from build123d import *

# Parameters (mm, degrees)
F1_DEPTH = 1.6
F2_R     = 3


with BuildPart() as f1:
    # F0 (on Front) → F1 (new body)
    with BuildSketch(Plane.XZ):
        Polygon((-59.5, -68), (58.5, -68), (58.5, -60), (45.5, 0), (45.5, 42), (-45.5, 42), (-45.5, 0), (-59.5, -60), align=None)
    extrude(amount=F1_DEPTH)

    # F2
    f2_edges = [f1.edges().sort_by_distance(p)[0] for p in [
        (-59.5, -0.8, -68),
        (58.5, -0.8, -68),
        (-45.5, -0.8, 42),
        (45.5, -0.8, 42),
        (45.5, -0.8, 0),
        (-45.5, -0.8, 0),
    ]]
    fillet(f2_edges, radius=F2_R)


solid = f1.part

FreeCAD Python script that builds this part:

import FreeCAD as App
import Part
import Sketcher

V = App.Vector


def edges_at(feature, points):
    """Names of the edges that pass closest to the given points."""
    edges = feature.Shape.Edges
    near = lambda p: min(range(len(edges)), key=lambda i: edges[i].distToShape(Part.Vertex(*p))[0])
    return sorted({f"Edge{near(p) + 1}" for p in points})

doc = App.newDocument("Part")
body = doc.addObject("PartDesign::Body", "Body")

sketch1 = body.newObject("Sketcher::SketchObject", "Sketch")
sketch1.AttachmentSupport = (doc.getObject("XZ_Plane"), [""])
sketch1.MapMode = "FlatFace"
sketch1.addGeometry(Part.LineSegment(V(-59.5, -68, 0), V(58.5, -68, 0)), False)
sketch1.addGeometry(Part.LineSegment(V(58.5, -68, 0), V(58.5, -60, 0)), False)
sketch1.addGeometry(Part.LineSegment(V(58.5, -60, 0), V(45.5, 0, 0)), False)
sketch1.addGeometry(Part.LineSegment(V(45.5, 0, 0), V(45.5, 42, 0)), False)
sketch1.addGeometry(Part.LineSegment(V(45.5, 42, 0), V(-45.5, 42, 0)), False)
sketch1.addGeometry(Part.LineSegment(V(-45.5, 42, 0), V(-45.5, 0, 0)), False)
sketch1.addGeometry(Part.LineSegment(V(-45.5, 0, 0), V(-59.5, -60, 0)), False)
sketch1.addGeometry(Part.LineSegment(V(-59.5, -60, 0), V(-59.5, -68, 0)), False)
sketch1.addConstraint(Sketcher.Constraint("Coincident", 0, 2, 1, 1))
sketch1.addConstraint(Sketcher.Constraint("Coincident", 1, 2, 2, 1))
sketch1.addConstraint(Sketcher.Constraint("Coincident", 2, 2, 3, 1))
sketch1.addConstraint(Sketcher.Constraint("Coincident", 3, 2, 4, 1))
sketch1.addConstraint(Sketcher.Constraint("Coincident", 4, 2, 5, 1))
sketch1.addConstraint(Sketcher.Constraint("Coincident", 5, 2, 6, 1))
sketch1.addConstraint(Sketcher.Constraint("Coincident", 6, 2, 7, 1))
sketch1.addConstraint(Sketcher.Constraint("Coincident", 7, 2, 0, 1))
sketch1.addConstraint(Sketcher.Constraint("Horizontal", 0))
sketch1.addConstraint(Sketcher.Constraint("Vertical", 1))
sketch1.addConstraint(Sketcher.Constraint("Vertical", 3))
sketch1.addConstraint(Sketcher.Constraint("Horizontal", 4))
sketch1.addConstraint(Sketcher.Constraint("Vertical", 5))
sketch1.addConstraint(Sketcher.Constraint("Vertical", 7))
sketch1.addConstraint(Sketcher.Constraint("Symmetric", 2, 2, 5, 2, -1, 1))
sketch1.addConstraint(Sketcher.Constraint("PointOnObject", 2, 2, -1))
sketch1.addConstraint(Sketcher.Constraint("Horizontal", 1, 2, 6, 2))
sketch1.addConstraint(Sketcher.Constraint("DistanceX", 0, 1, 0, 2, 118.0))
sketch1.addConstraint(Sketcher.Constraint("DistanceX", 4, 2, 4, 1, 91.0))
sketch1.addConstraint(Sketcher.Constraint("DistanceY", 1, 1, 1, 2, 8.0))
sketch1.addConstraint(Sketcher.Constraint("DistanceY", 3, 1, 3, 2, 42.0))
sketch1.addConstraint(Sketcher.Constraint("DistanceY", 0, 2, -1, 1, 68.0))
sketch1.addConstraint(Sketcher.Constraint("DistanceX", 2, 2, 1, 2, 13.0))
pad1 = body.newObject("PartDesign::Pad", "Pad")
pad1.Profile = sketch1
pad1.Length = 1.6
doc.recompute()

fillet = body.newObject("PartDesign::Fillet", "Fillet")
fillet.Base = (pad1, edges_at(pad1, [
    (-59.5, -0.8, -68),
    (58.5, -0.8, -68),
    (-45.5, -0.8, 42),
    (45.5, -0.8, 42),
    (45.5, -0.8, 0),
    (-45.5, -0.8, 0),
]))
fillet.Radius = 3

doc.recompute()
